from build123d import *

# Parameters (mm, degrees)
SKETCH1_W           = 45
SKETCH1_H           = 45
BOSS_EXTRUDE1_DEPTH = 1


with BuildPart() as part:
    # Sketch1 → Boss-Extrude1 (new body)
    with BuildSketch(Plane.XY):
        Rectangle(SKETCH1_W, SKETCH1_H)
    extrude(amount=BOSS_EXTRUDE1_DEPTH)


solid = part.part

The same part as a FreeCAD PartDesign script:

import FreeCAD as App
import Part
import Sketcher
from FreeCAD import Vector


def add_polygon(sketch, points):
    """Adds a closed chain of lines whose ends are joined by coincident constraints."""
    first, n = sketch.GeometryCount, len(points)
    for a, b in zip(points, points[1:] + points[:1]):
        sketch.addGeometry(Part.LineSegment(App.Vector(*a, 0), App.Vector(*b, 0)), False)
    for i in range(n):
        sketch.addConstraint(Sketcher.Constraint("Coincident", first + i, 2, first + (i + 1) % n, 1))

doc = App.newDocument("Part")
params = doc.addObject("Spreadsheet::Sheet", "Params")
for row, (alias, value) in enumerate([
    ("sketch1_width", "45 mm"),
    ("pad1_length", "1 mm"),
], start=1):
    params.set(f"A{row}", alias)
    params.set(f"B{row}", "=" + value)
    params.setAlias(f"B{row}", alias)

body = doc.addObject("PartDesign::Body", "Body")

sketch1 = body.newObject("Sketcher::SketchObject", "Sketch")
sketch1.AttachmentSupport = (doc.getObject("XY_Plane"), [""])
sketch1.MapMode = "FlatFace"
add_polygon(sketch1, [(-22.5, 22.5), (-22.5, -22.5), (22.5, -22.5), (22.5, 22.5)])
sketch1.addConstraint([
    Sketcher.Constraint("Vertical", 0),
    Sketcher.Constraint("Horizontal", 1),
    Sketcher.Constraint("Vertical", 2),
    Sketcher.Constraint("Horizontal", 3),
    Sketcher.Constraint("Symmetric", 0, 2, 2, 2, -1, 1),
    Sketcher.Constraint("Equal", 3, 0),
    Sketcher.Constraint("DistanceX", 1, 1, 1, 2, 45.0),
])
sketch1.setExpression("Constraints[10]", "Params.sketch1_width")
pad1 = body.newObject("PartDesign::Pad", "Pad")
pad1.Profile = sketch1
pad1.setExpression("Length", "Params.pad1_length")

doc.recompute()
